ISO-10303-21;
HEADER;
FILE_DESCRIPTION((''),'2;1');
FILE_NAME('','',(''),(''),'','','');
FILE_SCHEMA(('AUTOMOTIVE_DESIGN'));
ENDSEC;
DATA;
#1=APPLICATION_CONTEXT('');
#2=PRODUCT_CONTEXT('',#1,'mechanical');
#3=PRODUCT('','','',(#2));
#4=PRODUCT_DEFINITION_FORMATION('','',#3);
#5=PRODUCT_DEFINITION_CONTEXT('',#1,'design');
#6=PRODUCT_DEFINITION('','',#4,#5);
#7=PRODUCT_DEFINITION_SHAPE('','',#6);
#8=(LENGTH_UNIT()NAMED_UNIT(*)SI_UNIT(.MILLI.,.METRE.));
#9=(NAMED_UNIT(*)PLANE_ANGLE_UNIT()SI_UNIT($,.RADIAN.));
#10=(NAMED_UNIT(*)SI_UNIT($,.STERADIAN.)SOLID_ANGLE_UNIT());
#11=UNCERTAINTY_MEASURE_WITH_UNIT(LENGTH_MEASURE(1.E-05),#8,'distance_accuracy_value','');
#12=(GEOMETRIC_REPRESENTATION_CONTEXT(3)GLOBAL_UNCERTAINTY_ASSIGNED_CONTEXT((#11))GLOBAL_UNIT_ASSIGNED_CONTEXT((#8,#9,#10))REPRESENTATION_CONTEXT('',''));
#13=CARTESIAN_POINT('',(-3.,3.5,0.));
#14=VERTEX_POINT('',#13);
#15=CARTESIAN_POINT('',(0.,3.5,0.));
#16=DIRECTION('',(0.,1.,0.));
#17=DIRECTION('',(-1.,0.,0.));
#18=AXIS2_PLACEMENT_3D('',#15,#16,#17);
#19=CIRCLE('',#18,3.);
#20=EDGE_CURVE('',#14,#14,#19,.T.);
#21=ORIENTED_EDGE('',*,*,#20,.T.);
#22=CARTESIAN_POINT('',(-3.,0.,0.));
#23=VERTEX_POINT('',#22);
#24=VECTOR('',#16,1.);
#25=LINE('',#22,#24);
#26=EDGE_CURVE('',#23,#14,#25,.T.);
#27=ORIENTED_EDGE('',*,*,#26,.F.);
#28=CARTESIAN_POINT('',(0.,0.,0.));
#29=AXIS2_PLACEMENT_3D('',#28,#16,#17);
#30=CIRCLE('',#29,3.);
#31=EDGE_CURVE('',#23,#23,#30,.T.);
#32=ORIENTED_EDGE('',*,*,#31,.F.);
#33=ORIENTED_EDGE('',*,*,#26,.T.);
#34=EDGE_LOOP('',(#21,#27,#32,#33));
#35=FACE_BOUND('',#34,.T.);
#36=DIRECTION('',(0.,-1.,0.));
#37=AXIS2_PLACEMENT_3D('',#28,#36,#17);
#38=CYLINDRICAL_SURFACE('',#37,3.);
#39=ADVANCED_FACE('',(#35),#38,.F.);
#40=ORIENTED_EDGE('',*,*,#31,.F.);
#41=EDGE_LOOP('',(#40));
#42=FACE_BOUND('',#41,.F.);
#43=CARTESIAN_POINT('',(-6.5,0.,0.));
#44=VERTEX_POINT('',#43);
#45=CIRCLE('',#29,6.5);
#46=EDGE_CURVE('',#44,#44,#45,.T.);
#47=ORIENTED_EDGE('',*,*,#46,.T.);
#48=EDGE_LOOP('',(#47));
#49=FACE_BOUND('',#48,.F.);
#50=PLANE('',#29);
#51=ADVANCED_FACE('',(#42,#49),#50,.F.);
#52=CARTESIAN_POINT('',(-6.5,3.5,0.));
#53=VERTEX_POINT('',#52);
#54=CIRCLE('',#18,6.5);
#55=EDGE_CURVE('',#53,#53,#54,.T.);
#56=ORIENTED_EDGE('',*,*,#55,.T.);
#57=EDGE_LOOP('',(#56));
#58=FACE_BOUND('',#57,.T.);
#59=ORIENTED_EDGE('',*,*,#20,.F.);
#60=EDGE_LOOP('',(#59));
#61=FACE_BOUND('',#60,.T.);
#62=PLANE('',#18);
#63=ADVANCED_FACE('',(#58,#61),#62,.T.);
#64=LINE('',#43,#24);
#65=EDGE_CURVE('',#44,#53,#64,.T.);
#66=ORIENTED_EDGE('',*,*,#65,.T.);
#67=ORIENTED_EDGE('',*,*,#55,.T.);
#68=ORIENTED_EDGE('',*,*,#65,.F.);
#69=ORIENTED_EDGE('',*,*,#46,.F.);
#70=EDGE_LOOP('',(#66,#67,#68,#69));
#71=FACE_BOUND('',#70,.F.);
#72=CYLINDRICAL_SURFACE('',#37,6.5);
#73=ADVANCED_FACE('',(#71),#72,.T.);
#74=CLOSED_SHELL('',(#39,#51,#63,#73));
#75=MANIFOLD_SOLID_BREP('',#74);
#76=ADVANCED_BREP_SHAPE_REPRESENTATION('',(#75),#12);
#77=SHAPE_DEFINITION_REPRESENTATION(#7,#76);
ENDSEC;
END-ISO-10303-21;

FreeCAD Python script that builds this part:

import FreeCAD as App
import Part
import Sketcher

V = App.Vector
Q = App.Units.Quantity

doc = App.newDocument("Part")
body = doc.addObject("PartDesign::Body", "Body")

# Sketch on XZ plane
sketch1 = body.newObject("Sketcher::SketchObject", "Sketch")
sketch1.AttachmentSupport = (doc.getObject("XZ_Plane"), [""])
sketch1.MapMode = "FlatFace"
sketch1.addGeometry([
    Part.Circle(V(0, 0, 0), V(0, 0, 1), 6.5),
    Part.Circle(V(0, 0, 0), V(0, 0, 1), 3),
], False)
sketch1.addConstraint([
    Sketcher.Constraint("Coincident", 0, 3, -1, 1),
    Sketcher.Constraint("Coincident", 1, 3, -1, 1),
    Sketcher.Constraint("Diameter", 0, Q("13 mm")),
    Sketcher.Constraint("Diameter", 1, Q("6 mm")),
])
pad1 = body.newObject("PartDesign::Pad", "Pad")
pad1.Profile = sketch1
pad1.Length = 3.5
pad1.Reversed = True

doc.recompute()
